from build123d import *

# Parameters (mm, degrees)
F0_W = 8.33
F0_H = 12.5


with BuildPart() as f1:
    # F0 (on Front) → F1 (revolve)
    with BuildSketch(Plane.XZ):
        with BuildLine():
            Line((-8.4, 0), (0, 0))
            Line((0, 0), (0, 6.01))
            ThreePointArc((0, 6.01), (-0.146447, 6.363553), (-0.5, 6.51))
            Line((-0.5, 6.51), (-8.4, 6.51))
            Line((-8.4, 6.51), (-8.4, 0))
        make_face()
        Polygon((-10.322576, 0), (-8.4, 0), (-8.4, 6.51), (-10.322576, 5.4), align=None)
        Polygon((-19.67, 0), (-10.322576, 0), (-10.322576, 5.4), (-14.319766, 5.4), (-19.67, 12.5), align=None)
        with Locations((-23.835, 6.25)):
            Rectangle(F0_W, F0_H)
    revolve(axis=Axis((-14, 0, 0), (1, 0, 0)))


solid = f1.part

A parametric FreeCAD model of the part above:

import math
import FreeCAD as App
import Part
import Sketcher
Q = App.Units.Quantity

doc = App.newDocument("Part")
body = doc.addObject("PartDesign::Body", "Body")

# Sketch on XZ plane
sketch1 = doc.addObject("Sketcher::SketchObject", "Sketch")
body.addObject(sketch1)
sketch1.AttachmentSupport = (doc.XZ_Plane, [""])
sketch1.MapMode = "FlatFace"
sketch1.addGeometry(Part.LineSegment(App.Vector(0, 0, 0), App.Vector(0, 6, 0)), False)
sketch1.addGeometry(Part.ArcOfCircle(Part.Circle(App.Vector(-0.5, 6, 0), App.Vector(0, 0, 1), 0.5), math.radians(0), math.radians(90)), False)
sketch1.addGeometry(Part.LineSegment(App.Vector(-0.5, 6.5, 0), App.Vector(-8.4, 6.5, 0)), False)
sketch1.addGeometry(Part.LineSegment(App.Vector(-8.4, 6.5, 0), App.Vector(-10.3, 5.4, 0)), False)
sketch1.addGeometry(Part.LineSegment(App.Vector(-10.3, 5.4, 0), App.Vector(-14.3, 5.4, 0)), False)
sketch1.addGeometry(Part.LineSegment(App.Vector(-14.3, 5.4, 0), App.Vector(-19.7, 12.5, 0)), False)
sketch1.addGeometry(Part.LineSegment(App.Vector(-19.7, 12.5, 0), App.Vector(-28, 12.5, 0)), False)
sketch1.addGeometry(Part.LineSegment(App.Vector(-28, 12.5, 0), App.Vector(-28, 0, 0)), False)
sketch1.addGeometry(Part.LineSegment(App.Vector(-28, 0, 0), App.Vector(0, 0, 0)), False)
sketch1.addConstraint(Sketcher.Constraint("Coincident", 0, 2, 1, 1))
sketch1.addConstraint(Sketcher.Constraint("Coincident", 1, 2, 2, 1))
sketch1.addConstraint(Sketcher.Constraint("Coincident", 2, 2, 3, 1))
sketch1.addConstraint(Sketcher.Constraint("Coincident", 3, 2, 4, 1))
sketch1.addConstraint(Sketcher.Constraint("Coincident", 4, 2, 5, 1))
sketch1.addConstraint(Sketcher.Constraint("Coincident", 5, 2, 6, 1))
sketch1.addConstraint(Sketcher.Constraint("Coincident", 6, 2, 7, 1))
sketch1.addConstraint(Sketcher.Constraint("Coincident", 7, 2, 8, 1))
sketch1.addConstraint(Sketcher.Constraint("Coincident", 8, 2, 0, 1))
sketch1.addConstraint(Sketcher.Constraint("Vertical", 0))
sketch1.addConstraint(Sketcher.Constraint("Horizontal", 2))
sketch1.addConstraint(Sketcher.Constraint("Horizontal", 4))
sketch1.addConstraint(Sketcher.Constraint("Horizontal", 6))
sketch1.addConstraint(Sketcher.Constraint("Vertical", 7))
sketch1.addConstraint(Sketcher.Constraint("Horizontal", 8))
sketch1.addConstraint(Sketcher.Constraint("Coincident", 8, 2, -1, 1))
sketch1.addConstraint(Sketcher.Constraint("Horizontal", 1, 3, 0, 2))
sketch1.addConstraint(Sketcher.Constraint("Radius", 1, 0.500001))
sketch1.addConstraint(Sketcher.Constraint("DistanceX", 8, 1, 8, 2, 28.0))
sketch1.addConstraint(Sketcher.Constraint("Angle", 3, Q("-149.999995 deg")))
sketch1.addConstraint(Sketcher.Constraint("Angle", 5, Q("127.000001 deg")))
sketch1.addConstraint(Sketcher.Constraint("DistanceX", 2, 2, 2, 1, 7.9))
sketch1.addConstraint(Sketcher.Constraint("DistanceY", 7, 2, 7, 1, 12.5))
sketch1.addConstraint(Sketcher.Constraint("DistanceX", 6, 2, 6, 1, 8.33))
sketch1.addConstraint(Sketcher.Constraint("DistanceY", 0, 1, 0, 2, 6.01))
sketch1.addConstraint(Sketcher.Constraint("DistanceX", 1, 2, -1, 1, 0.5))
sketch1.addConstraint(Sketcher.Constraint("DistanceY", -1, 1, 3, 2, 5.4))
revolution = doc.addObject("PartDesign::Revolution", "Revolution")
body.addObject(revolution)
revolution.Profile = sketch1
revolution.ReferenceAxis = (sketch1, ["H_Axis"])
revolution.Angle = 360

doc.recompute()
